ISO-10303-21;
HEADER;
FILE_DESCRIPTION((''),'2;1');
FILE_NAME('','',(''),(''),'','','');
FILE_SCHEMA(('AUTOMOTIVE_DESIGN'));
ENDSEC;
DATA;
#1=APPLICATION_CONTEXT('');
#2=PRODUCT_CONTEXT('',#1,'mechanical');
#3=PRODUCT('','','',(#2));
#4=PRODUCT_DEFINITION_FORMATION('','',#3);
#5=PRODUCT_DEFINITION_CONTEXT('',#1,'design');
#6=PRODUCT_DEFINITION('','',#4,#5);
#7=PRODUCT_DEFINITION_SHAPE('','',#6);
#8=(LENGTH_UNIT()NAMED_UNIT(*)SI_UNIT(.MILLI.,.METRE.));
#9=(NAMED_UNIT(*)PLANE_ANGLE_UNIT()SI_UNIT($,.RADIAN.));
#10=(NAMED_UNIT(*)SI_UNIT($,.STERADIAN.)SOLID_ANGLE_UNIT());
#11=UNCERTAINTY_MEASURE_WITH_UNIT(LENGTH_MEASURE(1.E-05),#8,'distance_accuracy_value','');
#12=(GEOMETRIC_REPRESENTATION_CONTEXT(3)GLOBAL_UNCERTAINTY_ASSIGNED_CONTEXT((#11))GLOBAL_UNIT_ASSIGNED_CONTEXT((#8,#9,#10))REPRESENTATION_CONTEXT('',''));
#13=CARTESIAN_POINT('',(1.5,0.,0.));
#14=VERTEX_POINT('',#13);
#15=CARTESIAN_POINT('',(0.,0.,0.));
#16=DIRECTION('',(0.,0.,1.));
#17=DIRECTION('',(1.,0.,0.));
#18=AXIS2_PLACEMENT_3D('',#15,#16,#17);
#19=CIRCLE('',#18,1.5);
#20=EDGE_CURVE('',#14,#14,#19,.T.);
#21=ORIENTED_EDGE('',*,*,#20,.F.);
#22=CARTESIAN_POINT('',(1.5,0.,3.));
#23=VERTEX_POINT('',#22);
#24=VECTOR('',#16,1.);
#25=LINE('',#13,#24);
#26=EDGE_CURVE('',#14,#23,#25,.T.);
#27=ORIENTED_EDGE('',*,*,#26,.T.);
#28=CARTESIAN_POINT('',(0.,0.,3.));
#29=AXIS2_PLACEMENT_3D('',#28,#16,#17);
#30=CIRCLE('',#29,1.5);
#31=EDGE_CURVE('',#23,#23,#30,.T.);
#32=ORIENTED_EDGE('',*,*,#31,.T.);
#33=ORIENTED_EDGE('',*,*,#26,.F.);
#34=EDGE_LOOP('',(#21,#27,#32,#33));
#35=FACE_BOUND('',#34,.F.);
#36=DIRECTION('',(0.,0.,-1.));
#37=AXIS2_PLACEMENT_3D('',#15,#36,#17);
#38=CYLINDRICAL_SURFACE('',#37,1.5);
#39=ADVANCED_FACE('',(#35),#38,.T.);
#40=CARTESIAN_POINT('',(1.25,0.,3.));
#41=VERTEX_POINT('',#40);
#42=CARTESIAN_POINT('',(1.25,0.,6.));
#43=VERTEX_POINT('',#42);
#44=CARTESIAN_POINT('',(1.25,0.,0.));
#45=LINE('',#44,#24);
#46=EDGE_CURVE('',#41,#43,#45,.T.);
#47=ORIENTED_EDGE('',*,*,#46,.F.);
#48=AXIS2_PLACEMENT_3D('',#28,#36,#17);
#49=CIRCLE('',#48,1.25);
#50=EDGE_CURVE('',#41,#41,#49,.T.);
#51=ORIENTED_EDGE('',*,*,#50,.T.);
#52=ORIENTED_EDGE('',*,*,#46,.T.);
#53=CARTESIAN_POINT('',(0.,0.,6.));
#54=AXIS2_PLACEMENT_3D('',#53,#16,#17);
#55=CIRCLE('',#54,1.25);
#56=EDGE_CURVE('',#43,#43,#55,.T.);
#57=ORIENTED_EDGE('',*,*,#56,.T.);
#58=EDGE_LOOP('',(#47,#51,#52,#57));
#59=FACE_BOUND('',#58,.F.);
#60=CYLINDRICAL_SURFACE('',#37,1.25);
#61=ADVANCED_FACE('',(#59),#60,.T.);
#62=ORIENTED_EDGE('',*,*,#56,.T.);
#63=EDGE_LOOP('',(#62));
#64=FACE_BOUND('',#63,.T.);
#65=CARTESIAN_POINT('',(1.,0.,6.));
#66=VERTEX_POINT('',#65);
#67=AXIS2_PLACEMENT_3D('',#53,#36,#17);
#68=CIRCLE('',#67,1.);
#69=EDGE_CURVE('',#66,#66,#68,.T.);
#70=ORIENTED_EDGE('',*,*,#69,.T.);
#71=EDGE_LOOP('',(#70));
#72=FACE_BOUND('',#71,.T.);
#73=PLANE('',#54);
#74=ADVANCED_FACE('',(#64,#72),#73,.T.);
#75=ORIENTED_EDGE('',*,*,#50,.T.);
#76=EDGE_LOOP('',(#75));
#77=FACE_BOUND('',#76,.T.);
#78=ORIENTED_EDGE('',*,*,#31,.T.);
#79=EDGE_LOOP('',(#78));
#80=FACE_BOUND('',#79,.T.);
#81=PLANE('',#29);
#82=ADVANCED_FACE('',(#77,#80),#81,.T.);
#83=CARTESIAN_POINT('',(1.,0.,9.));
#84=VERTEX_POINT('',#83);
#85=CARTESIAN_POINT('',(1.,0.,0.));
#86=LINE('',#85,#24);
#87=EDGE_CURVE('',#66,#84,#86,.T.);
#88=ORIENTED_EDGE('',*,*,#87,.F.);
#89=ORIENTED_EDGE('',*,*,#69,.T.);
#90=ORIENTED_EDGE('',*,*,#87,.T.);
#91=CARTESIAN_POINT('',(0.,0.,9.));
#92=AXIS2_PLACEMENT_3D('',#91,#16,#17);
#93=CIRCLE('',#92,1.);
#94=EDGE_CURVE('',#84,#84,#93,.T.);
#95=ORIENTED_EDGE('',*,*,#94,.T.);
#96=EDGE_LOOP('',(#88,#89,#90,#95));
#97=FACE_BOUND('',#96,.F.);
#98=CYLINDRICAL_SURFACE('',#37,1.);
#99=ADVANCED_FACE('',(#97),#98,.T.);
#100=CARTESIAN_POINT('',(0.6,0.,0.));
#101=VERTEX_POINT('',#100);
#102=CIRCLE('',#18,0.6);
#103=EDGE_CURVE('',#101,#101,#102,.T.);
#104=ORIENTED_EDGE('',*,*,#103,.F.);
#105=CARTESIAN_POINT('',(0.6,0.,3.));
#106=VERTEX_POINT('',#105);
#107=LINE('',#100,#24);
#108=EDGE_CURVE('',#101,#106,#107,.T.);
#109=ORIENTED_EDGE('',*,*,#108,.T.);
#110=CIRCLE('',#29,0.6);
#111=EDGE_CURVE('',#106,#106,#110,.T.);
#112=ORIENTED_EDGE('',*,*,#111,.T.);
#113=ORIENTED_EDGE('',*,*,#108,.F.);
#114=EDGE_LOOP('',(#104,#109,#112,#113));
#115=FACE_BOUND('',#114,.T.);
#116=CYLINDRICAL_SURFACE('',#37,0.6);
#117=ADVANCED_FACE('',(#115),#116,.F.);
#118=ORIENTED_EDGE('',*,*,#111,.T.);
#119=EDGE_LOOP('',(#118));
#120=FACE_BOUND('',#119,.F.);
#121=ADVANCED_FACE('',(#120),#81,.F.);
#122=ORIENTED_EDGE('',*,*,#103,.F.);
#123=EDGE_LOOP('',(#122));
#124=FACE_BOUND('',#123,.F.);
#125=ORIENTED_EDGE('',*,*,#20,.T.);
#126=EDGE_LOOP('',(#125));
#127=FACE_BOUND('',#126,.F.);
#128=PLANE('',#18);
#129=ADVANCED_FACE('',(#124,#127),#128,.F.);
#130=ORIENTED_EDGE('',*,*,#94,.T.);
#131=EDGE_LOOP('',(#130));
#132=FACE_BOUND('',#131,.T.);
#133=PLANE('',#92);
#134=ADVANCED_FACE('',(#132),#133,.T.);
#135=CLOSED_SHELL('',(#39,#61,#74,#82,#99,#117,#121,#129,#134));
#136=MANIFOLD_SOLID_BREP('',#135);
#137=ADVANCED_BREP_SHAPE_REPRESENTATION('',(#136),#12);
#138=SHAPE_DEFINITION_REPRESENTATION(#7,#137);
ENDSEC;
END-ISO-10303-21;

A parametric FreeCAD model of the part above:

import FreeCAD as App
import Part
import Sketcher

V = App.Vector
Q = App.Units.Quantity

doc = App.newDocument("Part")
body = doc.addObject("PartDesign::Body", "Body")

sketch1 = body.newObject("Sketcher::SketchObject", "Sketch")
sketch1.AttachmentSupport = (doc.getObject("XY_Plane"), [""])
sketch1.MapMode = "FlatFace"
sketch1.addGeometry(Part.Circle(V(0, 0, 0), V(0, 0, 1), 1.25), False)
sketch1.addConstraint(Sketcher.Constraint("Coincident", 0, 3, -1, 1))
sketch1.addConstraint(Sketcher.Constraint("Diameter", 0, Q("2.5 mm")))
pad1 = body.newObject("PartDesign::Pad", "Pad")
pad1.Profile = sketch1
pad1.Length = 6

sketch2 = body.newObject("Sketcher::SketchObject", "Sketch001")
sketch2.AttachmentSupport = (doc.getObject("XY_Plane"), [""])
sketch2.MapMode = "FlatFace"
sketch2.addGeometry(Part.Circle(V(0, 0, 0), V(0, 0, 1), 1), False)
sketch2.addConstraint(Sketcher.Constraint("Coincident", 0, 3, -1, 1))
sketch2.addConstraint(Sketcher.Constraint("Diameter", 0, Q("2 mm")))
pad2 = body.newObject("PartDesign::Pad", "Pad001")
pad2.Profile = sketch2
pad2.Length = 9

sketch3 = body.newObject("Sketcher::SketchObject", "Sketch002")
sketch3.AttachmentSupport = (doc.getObject("XY_Plane"), [""])
sketch3.MapMode = "FlatFace"
sketch3.addGeometry(Part.Circle(V(0, 0, 0), V(0, 0, 1), 1.5), False)
sketch3.addConstraint(Sketcher.Constraint("Coincident", 0, 3, -1, 1))
sketch3.addConstraint(Sketcher.Constraint("Diameter", 0, Q("3 mm")))
pad3 = body.newObject("PartDesign::Pad", "Pad002")
pad3.Profile = sketch3
pad3.Length = 3

sketch4 = body.newObject("Sketcher::SketchObject", "Sketch003")
sketch4.AttachmentSupport = (doc.getObject("XY_Plane"), [""])
sketch4.MapMode = "FlatFace"
sketch4.addGeometry(Part.Circle(V(0, 0, 0), V(0, 0, 1), 0.6), False)
sketch4.addConstraint(Sketcher.Constraint("Coincident", 0, 3, -1, 1))
sketch4.addConstraint(Sketcher.Constraint("Diameter", 0, Q("1.2 mm")))
pocket1 = body.newObject("PartDesign::Pocket", "Pocket")
pocket1.Profile = sketch4
pocket1.Length = 3
pocket1.Reversed = True

doc.recompute()
